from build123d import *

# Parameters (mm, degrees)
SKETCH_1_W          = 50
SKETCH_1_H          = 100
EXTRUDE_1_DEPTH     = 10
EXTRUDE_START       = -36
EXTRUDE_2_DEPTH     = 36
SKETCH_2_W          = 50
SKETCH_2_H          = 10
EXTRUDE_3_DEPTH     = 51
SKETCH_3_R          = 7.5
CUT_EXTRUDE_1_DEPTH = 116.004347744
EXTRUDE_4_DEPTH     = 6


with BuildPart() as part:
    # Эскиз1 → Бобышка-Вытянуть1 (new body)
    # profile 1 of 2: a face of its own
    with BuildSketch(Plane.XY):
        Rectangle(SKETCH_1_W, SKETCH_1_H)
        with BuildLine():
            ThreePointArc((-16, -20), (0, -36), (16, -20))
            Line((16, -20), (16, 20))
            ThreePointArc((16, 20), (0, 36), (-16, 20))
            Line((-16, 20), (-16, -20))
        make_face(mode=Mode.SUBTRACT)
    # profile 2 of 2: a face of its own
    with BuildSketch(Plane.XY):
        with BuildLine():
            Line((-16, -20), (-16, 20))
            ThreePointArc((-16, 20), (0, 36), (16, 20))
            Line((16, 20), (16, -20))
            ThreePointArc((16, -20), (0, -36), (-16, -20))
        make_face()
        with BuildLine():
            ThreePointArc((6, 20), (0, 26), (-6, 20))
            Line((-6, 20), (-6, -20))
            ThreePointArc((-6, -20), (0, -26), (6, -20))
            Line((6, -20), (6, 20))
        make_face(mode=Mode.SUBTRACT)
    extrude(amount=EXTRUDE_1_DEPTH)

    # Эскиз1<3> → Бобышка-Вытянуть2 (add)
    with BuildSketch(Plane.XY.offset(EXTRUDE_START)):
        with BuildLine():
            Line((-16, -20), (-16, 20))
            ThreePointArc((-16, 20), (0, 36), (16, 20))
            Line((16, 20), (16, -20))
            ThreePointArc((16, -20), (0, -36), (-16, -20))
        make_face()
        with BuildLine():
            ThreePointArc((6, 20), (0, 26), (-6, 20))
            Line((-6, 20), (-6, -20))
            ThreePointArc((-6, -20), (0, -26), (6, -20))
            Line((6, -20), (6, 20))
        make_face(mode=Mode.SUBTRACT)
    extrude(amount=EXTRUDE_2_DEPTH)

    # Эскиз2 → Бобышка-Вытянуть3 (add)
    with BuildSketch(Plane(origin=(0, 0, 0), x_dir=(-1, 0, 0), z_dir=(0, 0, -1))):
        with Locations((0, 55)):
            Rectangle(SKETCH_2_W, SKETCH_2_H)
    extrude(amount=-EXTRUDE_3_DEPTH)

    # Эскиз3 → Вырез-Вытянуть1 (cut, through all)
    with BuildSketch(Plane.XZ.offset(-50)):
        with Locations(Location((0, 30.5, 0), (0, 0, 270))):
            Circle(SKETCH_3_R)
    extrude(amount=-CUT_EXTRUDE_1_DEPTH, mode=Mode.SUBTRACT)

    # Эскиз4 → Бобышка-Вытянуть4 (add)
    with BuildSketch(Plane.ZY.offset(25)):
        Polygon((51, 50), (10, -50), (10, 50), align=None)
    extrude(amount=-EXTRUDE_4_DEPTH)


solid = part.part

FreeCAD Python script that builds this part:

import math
import FreeCAD as App
import Part
import Sketcher
from FreeCAD import Vector
Q = App.Units.Quantity


def add_polygon(sketch, points):
    """Adds a closed chain of lines whose ends are joined by coincident constraints."""
    first, n = sketch.GeometryCount, len(points)
    for a, b in zip(points, points[1:] + points[:1]):
        sketch.addGeometry(Part.LineSegment(App.Vector(*a, 0), App.Vector(*b, 0)), False)
    for i in range(n):
        sketch.addConstraint(Sketcher.Constraint("Coincident", first + i, 2, first + (i + 1) % n, 1))

doc = App.newDocument("Part")
body = doc.addObject("PartDesign::Body", "Body")

# Sketch on XY plane
sketch1 = body.newObject("Sketcher::SketchObject", "Sketch")
sketch1.AttachmentSupport = (doc.getObject("XY_Plane"), [""])
sketch1.MapMode = "FlatFace"
add_polygon(sketch1, [(-25, 50), (-25, -50), (25, -50), (25, 50)])  # lines 0-3
sketch1.addGeometry(Part.LineSegment(Vector(6, 20, 0), Vector(6, -20, 0)), False)  # 4
sketch1.addGeometry(Part.ArcOfCircle(Part.Circle(Vector(0, -20, 0), Vector(0, 0, 1), 6), math.radians(180), math.radians(360)), False)  # 5
sketch1.addGeometry(Part.LineSegment(Vector(-6, -20, 0), Vector(-6, 20, 0)), False)  # 6
sketch1.addGeometry(Part.ArcOfCircle(Part.Circle(Vector(0, 20, 0), Vector(0, 0, 1), 6), math.radians(0), math.radians(180)), False)  # 7
sketch1.addConstraint([
    Sketcher.Constraint("Tangent", 4, 2, 5, 2),
    Sketcher.Constraint("Tangent", 5, 1, 6, 1),
    Sketcher.Constraint("Tangent", 6, 2, 7, 2),
    Sketcher.Constraint("Tangent", 7, 1, 4, 1),
    Sketcher.Constraint("Vertical", 0),
    Sketcher.Constraint("Horizontal", 1),
    Sketcher.Constraint("Vertical", 2),
    Sketcher.Constraint("Horizontal", 3),
    Sketcher.Constraint("Vertical", 4),
    Sketcher.Constraint("Vertical", 6),
    Sketcher.Constraint("Symmetric", 5, 3, 7, 3, -1, 1),
    Sketcher.Constraint("Symmetric", 0, 2, 2, 2, -1, 1),
    Sketcher.Constraint("Radius", 5, Q("6 mm")),
    Sketcher.Constraint("DistanceX", 1, 1, 1, 2, Q("50 mm")),
    Sketcher.Constraint("DistanceY", 0, 2, 0, 1, Q("100 mm")),
    Sketcher.Constraint("DistanceY", 4, 2, 4, 1, Q("40 mm")),
])
pad1 = body.newObject("PartDesign::Pad", "Pad")
pad1.Profile = sketch1
pad1.Length = 10

# Sketch on XY plane
sketch2 = body.newObject("Sketcher::SketchObject", "Sketch001")
sketch2.AttachmentSupport = (doc.getObject("XY_Plane"), [""])
sketch2.MapMode = "FlatFace"
sketch2.AttachmentOffset = App.Placement(Vector(0, 0, -36), App.Rotation())
sketch2.addGeometry([
    Part.LineSegment(Vector(-16, 20, 0), Vector(-16, -20, 0)),  # 0
    Part.ArcOfCircle(Part.Circle(Vector(0, -20, 0), Vector(0, 0, 1), 16), math.radians(180), math.radians(360)),  # 1
    Part.LineSegment(Vector(16, -20, 0), Vector(16, 20, 0)),  # 2
    Part.ArcOfCircle(Part.Circle(Vector(0, 20, 0), Vector(0, 0, 1), 16), math.radians(0), math.radians(180)),  # 3
    Part.LineSegment(Vector(6, 20, 0), Vector(6, -20, 0)),  # 4
    Part.ArcOfCircle(Part.Circle(Vector(0, -20, 0), Vector(0, 0, 1), 6), math.radians(180), math.radians(360)),  # 5
    Part.LineSegment(Vector(-6, -20, 0), Vector(-6, 20, 0)),  # 6
    Part.ArcOfCircle(Part.Circle(Vector(0, 20, 0), Vector(0, 0, 1), 6), math.radians(0), math.radians(180)),  # 7
], False)
sketch2.addConstraint([
    Sketcher.Constraint("Tangent", 0, 2, 1, 1),
    Sketcher.Constraint("Tangent", 1, 2, 2, 1),
    Sketcher.Constraint("Tangent", 2, 2, 3, 1),
    Sketcher.Constraint("Tangent", 3, 2, 0, 1),
    Sketcher.Constraint("Tangent", 4, 2, 5, 2),
    Sketcher.Constraint("Tangent", 5, 1, 6, 1),
    Sketcher.Constraint("Tangent", 6, 2, 7, 2),
    Sketcher.Constraint("Tangent", 7, 1, 4, 1),
    Sketcher.Constraint("Vertical", 0),
    Sketcher.Constraint("Vertical", 2),
    Sketcher.Constraint("Vertical", 4),
    Sketcher.Constraint("Vertical", 6),
    Sketcher.Constraint("Coincident", 5, 3, 1, 3),
    Sketcher.Constraint("Symmetric", 1, 3, 3, 3, -1, 1),
    Sketcher.Constraint("Horizontal", 7, 3, 2, 2),
    Sketcher.Constraint("Radius", 1, Q("16 mm")),
    Sketcher.Constraint("Radius", 5, Q("6 mm")),
    Sketcher.Constraint("DistanceY", 0, 2, 0, 1, Q("40 mm")),
])
pad2 = body.newObject("PartDesign::Pad", "Pad001")
pad2.Profile = sketch2
pad2.Length = 36

# Sketch on XY plane
sketch3 = body.newObject("Sketcher::SketchObject", "Sketch002")
sketch3.AttachmentSupport = (doc.getObject("XY_Plane"), [""])
sketch3.MapMode = "FlatFace"
add_polygon(sketch3, [(25, 60), (25, 50), (-25, 50), (-25, 60)])  # lines 0-3
sketch3.addConstraint([
    Sketcher.Constraint("Vertical", 0),
    Sketcher.Constraint("Horizontal", 1),
    Sketcher.Constraint("Vertical", 2),
    Sketcher.Constraint("Horizontal", 3),
    Sketcher.Constraint("DistanceX", 1, 2, 1, 1, Q("50 mm")),
    Sketcher.Constraint("DistanceY", 0, 2, 0, 1, Q("10 mm")),
    Sketcher.Constraint("DistanceX", -1, 1, 0, 2, Q("25 mm")),
    Sketcher.Constraint("DistanceY", -1, 1, 0, 2, Q("50 mm")),
])
pad3 = body.newObject("PartDesign::Pad", "Pad002")
pad3.Profile = sketch3
pad3.Length = 51

# Sketch on XZ plane
sketch4 = body.newObject("Sketcher::SketchObject", "Sketch003")
sketch4.AttachmentSupport = (doc.getObject("XZ_Plane"), [""])
sketch4.MapMode = "FlatFace"
sketch4.AttachmentOffset = App.Placement(Vector(0, 0, -50), App.Rotation())
sketch4.addGeometry(Part.Circle(Vector(0, 30.5, 0), Vector(0, 0, 1), 7.5), False)
sketch4.addConstraint([
    Sketcher.Constraint("PointOnObject", 0, 3, -2),
    Sketcher.Constraint("Diameter", 0, Q("15 mm")),
    Sketcher.Constraint("DistanceY", -1, 1, 0, 3, Q("30.5 mm")),
])
pocket1 = body.newObject("PartDesign::Pocket", "Pocket")
pocket1.Profile = sketch4
pocket1.Type = "ThroughAll"

# Sketch on YZ plane
sketch5 = body.newObject("Sketcher::SketchObject", "Sketch004")
sketch5.AttachmentSupport = (doc.getObject("YZ_Plane"), [""])
sketch5.MapMode = "FlatFace"
sketch5.AttachmentOffset = App.Placement(Vector(0, 0, -25), App.Rotation())
add_polygon(sketch5, [(-50, 10), (50, 51), (50, 10)])  # lines 0-2
sketch5.addConstraint([
    Sketcher.Constraint("Vertical", 1),
    Sketcher.Constraint("Horizontal", 2),
    Sketcher.Constraint("DistanceX", 2, 2, 2, 1, Q("100 mm")),
    Sketcher.Constraint("DistanceY", 1, 2, 1, 1, Q("41 mm")),
    Sketcher.Constraint("DistanceX", -1, 1, 0, 2, Q("50 mm")),
    Sketcher.Constraint("DistanceY", -1, 1, 0, 2, Q("51 mm")),
])
pad4 = body.newObject("PartDesign::Pad", "Pad003")
pad4.Profile = sketch5
pad4.Length = 6

doc.recompute()
